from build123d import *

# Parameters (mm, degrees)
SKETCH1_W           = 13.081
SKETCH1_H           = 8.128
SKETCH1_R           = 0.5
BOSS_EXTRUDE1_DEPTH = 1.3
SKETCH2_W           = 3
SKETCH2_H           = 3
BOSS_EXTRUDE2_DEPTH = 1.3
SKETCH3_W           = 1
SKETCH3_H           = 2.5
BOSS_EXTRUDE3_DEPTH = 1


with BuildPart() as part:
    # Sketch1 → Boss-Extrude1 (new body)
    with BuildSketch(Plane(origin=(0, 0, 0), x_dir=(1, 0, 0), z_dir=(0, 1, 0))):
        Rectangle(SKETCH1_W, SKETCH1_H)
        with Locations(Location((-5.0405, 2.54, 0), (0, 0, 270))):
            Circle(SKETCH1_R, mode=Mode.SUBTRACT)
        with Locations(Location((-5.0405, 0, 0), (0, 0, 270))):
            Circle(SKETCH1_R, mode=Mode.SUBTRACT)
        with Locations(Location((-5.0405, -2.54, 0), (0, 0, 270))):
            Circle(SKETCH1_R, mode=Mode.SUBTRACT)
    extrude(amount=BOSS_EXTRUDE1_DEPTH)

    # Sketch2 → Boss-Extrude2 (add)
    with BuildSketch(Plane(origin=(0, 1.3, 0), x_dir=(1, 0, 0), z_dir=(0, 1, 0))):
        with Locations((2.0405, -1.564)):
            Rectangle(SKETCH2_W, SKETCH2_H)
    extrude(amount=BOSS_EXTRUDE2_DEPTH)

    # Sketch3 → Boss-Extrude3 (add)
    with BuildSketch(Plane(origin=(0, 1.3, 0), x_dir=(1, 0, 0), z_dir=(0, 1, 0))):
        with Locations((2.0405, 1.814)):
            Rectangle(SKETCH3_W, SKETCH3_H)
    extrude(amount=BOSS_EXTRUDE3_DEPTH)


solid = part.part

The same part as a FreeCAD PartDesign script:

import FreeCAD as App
import Part
import Sketcher
from FreeCAD import Vector
Q = App.Units.Quantity

doc = App.newDocument("Part")
body = doc.addObject("PartDesign::Body", "Body")

# Sketch on XZ plane
sketch1 = body.newObject("Sketcher::SketchObject", "Sketch")
sketch1.AttachmentSupport = (doc.getObject("XZ_Plane"), [""])
sketch1.MapMode = "FlatFace"
sketch1.addGeometry([
    Part.LineSegment(Vector(-6.5, -4.1, 0), Vector(-6.5, 4.1, 0)),  # 0
    Part.LineSegment(Vector(-6.5, 4.1, 0), Vector(6.5, 4.1, 0)),  # 1
    Part.LineSegment(Vector(6.5, 4.1, 0), Vector(6.5, -4.1, 0)),  # 2
    Part.LineSegment(Vector(6.5, -4.1, 0), Vector(-6.5, -4.1, 0)),  # 3
    Part.Circle(Vector(-5, 2.5, 0), Vector(0, 0, 1), 0.5),  # 4
    Part.Circle(Vector(-5, 0, 0), Vector(0, 0, 1), 0.5),  # 5
    Part.Circle(Vector(-5, -2.5, 0), Vector(0, 0, 1), 0.5),  # 6
], False)
sketch1.addConstraint([
    Sketcher.Constraint("Coincident", 0, 2, 1, 1),
    Sketcher.Constraint("Coincident", 1, 2, 2, 1),
    Sketcher.Constraint("Coincident", 2, 2, 3, 1),
    Sketcher.Constraint("Coincident", 3, 2, 0, 1),
    Sketcher.Constraint("Vertical", 0),
    Sketcher.Constraint("Horizontal", 1),
    Sketcher.Constraint("Vertical", 2),
    Sketcher.Constraint("Horizontal", 3),
    Sketcher.Constraint("Equal", 4, 5),
    Sketcher.Constraint("Equal", 5, 6),
    Sketcher.Constraint("Symmetric", 0, 2, 2, 2, -1, 1),
    Sketcher.Constraint("Symmetric", 4, 3, 6, 3, -1),
    Sketcher.Constraint("PointOnObject", 5, 3, -1),
    Sketcher.Constraint("Vertical", 4, 3, 5, 3),
    Sketcher.Constraint("Diameter", 4, Q("1 mm")),
    Sketcher.Constraint("DistanceX", 0, 2, 4, 3, Q("1.5 mm")),
    Sketcher.Constraint("DistanceX", 1, 1, 1, 2, Q("13.081 mm")),
    Sketcher.Constraint("DistanceY", 0, 1, 0, 2, Q("8.128 mm")),
    Sketcher.Constraint("DistanceY", -1, 1, 4, 3, Q("2.54 mm")),
])
pad1 = body.newObject("PartDesign::Pad", "Pad")
pad1.Profile = sketch1
pad1.Length = 1.3
pad1.Reversed = True

# Sketch on XZ plane
sketch2 = body.newObject("Sketcher::SketchObject", "Sketch001")
sketch2.AttachmentSupport = (doc.getObject("XZ_Plane"), [""])
sketch2.MapMode = "FlatFace"
sketch2.AttachmentOffset = App.Placement(Vector(0, 0, -1.3), App.Rotation())
sketch2.addGeometry([
    Part.LineSegment(Vector(0.5, 0.1, 0), Vector(0.5, 3.1, 0)),
    Part.LineSegment(Vector(0.5, 3.1, 0), Vector(3.5, 3.1, 0)),
    Part.LineSegment(Vector(3.5, 3.1, 0), Vector(3.5, 0.1, 0)),
    Part.LineSegment(Vector(3.5, 0.1, 0), Vector(0.5, 0.1, 0)),
], False)
sketch2.addConstraint([
    Sketcher.Constraint("Coincident", 0, 2, 1, 1),
    Sketcher.Constraint("Coincident", 1, 2, 2, 1),
    Sketcher.Constraint("Coincident", 2, 2, 3, 1),
    Sketcher.Constraint("Coincident", 3, 2, 0, 1),
    Sketcher.Constraint("Vertical", 0),
    Sketcher.Constraint("Horizontal", 1),
    Sketcher.Constraint("Vertical", 2),
    Sketcher.Constraint("Horizontal", 3),
    Sketcher.Constraint("Equal", 3, 0),
    Sketcher.Constraint("DistanceX", 1, 1, 1, 2, Q("3 mm")),
    Sketcher.Constraint("DistanceY", -1, 1, 0, 2, Q("3.064 mm")),
    Sketcher.Constraint("DistanceX", -1, 1, 0, 2, Q("0.5405 mm")),
])
pad2 = body.newObject("PartDesign::Pad", "Pad001")
pad2.Profile = sketch2
pad2.Length = 1.3
pad2.Reversed = True

# Sketch on XZ plane
sketch3 = body.newObject("Sketcher::SketchObject", "Sketch002")
sketch3.AttachmentSupport = (doc.getObject("XZ_Plane"), [""])
sketch3.MapMode = "FlatFace"
sketch3.AttachmentOffset = App.Placement(Vector(0, 0, -1.3), App.Rotation())
sketch3.addGeometry([
    Part.LineSegment(Vector(1.5, -3.1, 0), Vector(1.5, -0.6, 0)),
    Part.LineSegment(Vector(1.5, -0.6, 0), Vector(2.5, -0.6, 0)),
    Part.LineSegment(Vector(2.5, -0.6, 0), Vector(2.5, -3.1, 0)),
    Part.LineSegment(Vector(2.5, -3.1, 0), Vector(1.5, -3.1, 0)),
], False)
sketch3.addConstraint([
    Sketcher.Constraint("Coincident", 0, 2, 1, 1),
    Sketcher.Constraint("Coincident", 1, 2, 2, 1),
    Sketcher.Constraint("Coincident", 2, 2, 3, 1),
    Sketcher.Constraint("Coincident", 3, 2, 0, 1),
    Sketcher.Constraint("Vertical", 0),
    Sketcher.Constraint("Horizontal", 1),
    Sketcher.Constraint("Vertical", 2),
    Sketcher.Constraint("Horizontal", 3),
    Sketcher.Constraint("DistanceX", 1, 1, 1, 2, Q("1 mm")),
    Sketcher.Constraint("DistanceY", 0, 1, 0, 2, Q("2.5 mm")),
    Sketcher.Constraint("DistanceY", 0, 2, -1, 1, Q("0.564 mm")),
    Sketcher.Constraint("DistanceX", -1, 1, 0, 2, Q("1.5405 mm")),
])
pad3 = body.newObject("PartDesign::Pad", "Pad002")
pad3.Profile = sketch3
pad3.Length = 1
pad3.Reversed = True

doc.recompute()
